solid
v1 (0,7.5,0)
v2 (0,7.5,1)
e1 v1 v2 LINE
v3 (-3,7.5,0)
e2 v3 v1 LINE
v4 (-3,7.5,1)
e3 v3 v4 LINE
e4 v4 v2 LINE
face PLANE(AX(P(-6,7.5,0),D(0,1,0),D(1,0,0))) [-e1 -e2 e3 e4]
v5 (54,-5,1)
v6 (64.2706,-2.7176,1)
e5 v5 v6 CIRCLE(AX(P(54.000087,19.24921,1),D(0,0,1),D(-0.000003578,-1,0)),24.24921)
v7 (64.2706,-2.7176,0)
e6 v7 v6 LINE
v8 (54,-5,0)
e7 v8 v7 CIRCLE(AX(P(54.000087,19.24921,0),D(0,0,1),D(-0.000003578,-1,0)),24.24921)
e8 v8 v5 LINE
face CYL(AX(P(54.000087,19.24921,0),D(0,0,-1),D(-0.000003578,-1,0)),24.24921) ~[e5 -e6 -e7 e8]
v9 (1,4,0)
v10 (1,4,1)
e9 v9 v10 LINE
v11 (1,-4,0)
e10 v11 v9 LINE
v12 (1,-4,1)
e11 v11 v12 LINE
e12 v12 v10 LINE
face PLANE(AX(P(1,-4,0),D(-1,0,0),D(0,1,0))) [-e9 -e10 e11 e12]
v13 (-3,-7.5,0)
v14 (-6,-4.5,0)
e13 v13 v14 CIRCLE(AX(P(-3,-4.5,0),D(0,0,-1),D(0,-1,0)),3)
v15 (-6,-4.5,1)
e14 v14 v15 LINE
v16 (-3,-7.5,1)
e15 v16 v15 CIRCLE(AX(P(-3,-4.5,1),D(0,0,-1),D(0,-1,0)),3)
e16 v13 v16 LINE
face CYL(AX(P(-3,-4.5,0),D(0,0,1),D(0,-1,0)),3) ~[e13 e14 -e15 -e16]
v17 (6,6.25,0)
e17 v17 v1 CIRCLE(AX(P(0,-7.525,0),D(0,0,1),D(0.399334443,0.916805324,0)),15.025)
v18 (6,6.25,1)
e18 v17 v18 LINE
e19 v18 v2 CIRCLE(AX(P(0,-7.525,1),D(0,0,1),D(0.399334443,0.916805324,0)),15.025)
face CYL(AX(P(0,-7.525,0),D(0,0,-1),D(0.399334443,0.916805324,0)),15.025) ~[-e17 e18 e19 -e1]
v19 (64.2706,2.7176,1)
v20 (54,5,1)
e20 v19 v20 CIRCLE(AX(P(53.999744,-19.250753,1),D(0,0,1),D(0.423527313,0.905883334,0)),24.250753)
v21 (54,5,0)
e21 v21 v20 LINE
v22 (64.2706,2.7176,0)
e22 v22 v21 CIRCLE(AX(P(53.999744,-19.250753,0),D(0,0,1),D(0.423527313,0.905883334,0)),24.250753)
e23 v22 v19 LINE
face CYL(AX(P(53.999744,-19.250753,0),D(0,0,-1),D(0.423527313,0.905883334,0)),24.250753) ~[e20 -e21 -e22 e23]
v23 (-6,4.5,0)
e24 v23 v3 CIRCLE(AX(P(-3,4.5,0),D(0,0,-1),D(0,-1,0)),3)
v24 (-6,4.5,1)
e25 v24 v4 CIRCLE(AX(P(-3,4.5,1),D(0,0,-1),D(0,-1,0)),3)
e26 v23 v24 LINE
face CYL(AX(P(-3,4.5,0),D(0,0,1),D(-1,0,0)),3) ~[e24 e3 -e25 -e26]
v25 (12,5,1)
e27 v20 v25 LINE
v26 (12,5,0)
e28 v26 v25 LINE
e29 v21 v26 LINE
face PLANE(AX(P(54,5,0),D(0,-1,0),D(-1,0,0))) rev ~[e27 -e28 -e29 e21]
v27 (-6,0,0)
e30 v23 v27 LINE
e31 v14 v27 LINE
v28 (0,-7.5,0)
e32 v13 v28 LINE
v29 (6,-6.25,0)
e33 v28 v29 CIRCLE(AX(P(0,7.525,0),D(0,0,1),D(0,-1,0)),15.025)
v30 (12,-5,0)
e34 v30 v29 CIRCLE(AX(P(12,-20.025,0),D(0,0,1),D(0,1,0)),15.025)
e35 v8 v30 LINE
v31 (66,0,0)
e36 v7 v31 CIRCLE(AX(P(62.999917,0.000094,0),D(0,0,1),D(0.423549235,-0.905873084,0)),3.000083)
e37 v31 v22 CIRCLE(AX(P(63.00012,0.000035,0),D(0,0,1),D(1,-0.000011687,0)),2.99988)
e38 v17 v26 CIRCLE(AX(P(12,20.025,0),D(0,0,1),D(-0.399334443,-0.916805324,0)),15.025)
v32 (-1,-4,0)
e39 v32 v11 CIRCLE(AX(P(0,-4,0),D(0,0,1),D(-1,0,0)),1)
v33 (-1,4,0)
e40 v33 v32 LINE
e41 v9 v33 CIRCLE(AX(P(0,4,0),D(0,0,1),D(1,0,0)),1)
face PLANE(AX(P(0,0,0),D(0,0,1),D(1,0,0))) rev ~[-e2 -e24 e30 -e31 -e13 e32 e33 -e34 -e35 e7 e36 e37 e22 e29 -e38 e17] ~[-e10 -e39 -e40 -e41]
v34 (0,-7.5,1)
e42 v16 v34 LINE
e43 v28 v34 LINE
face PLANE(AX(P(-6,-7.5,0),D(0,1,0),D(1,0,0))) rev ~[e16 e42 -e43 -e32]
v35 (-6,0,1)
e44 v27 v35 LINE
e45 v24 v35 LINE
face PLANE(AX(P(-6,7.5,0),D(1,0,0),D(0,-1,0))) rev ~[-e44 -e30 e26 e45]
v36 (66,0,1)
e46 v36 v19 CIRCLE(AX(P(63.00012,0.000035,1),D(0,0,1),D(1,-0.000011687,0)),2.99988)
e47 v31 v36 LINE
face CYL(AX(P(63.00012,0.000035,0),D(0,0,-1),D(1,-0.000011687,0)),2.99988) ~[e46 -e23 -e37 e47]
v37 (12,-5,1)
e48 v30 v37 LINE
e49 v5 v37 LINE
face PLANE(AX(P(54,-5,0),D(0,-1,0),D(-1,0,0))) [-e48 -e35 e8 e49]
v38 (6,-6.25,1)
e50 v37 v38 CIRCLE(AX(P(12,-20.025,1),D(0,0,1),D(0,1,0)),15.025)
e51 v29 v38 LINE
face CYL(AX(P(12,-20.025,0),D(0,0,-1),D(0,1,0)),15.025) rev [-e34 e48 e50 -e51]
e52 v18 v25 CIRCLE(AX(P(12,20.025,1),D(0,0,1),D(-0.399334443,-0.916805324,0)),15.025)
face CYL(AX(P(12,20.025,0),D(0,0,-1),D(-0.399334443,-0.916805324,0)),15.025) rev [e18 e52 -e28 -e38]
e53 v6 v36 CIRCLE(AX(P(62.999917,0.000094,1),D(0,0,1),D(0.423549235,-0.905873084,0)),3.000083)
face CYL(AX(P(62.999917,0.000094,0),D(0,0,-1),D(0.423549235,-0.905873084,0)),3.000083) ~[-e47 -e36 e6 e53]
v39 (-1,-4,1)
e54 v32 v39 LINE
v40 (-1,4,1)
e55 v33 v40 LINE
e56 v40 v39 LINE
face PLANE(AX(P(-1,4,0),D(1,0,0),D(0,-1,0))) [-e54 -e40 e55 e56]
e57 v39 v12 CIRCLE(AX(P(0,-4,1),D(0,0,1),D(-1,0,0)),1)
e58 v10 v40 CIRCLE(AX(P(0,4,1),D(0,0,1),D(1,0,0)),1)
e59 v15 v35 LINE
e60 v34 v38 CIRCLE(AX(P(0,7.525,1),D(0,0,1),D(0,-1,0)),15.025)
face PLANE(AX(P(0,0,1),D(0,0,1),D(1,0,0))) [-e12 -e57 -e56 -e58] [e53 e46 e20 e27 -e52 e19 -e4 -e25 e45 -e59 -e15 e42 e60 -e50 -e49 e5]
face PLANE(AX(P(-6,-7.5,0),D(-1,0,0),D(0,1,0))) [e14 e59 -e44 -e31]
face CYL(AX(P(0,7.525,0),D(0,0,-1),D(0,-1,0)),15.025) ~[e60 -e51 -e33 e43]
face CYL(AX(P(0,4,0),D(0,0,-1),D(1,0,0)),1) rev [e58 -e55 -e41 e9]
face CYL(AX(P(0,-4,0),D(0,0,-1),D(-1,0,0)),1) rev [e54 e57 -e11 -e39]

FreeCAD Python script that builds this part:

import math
import FreeCAD as App
import Part
import Sketcher
Q = App.Units.Quantity


def edges_at(feature, points):
    """Names of the edges that pass closest to the given points."""
    edges = feature.Shape.Edges
    near = lambda p: min(range(len(edges)), key=lambda i: edges[i].distToShape(Part.Vertex(*p))[0])
    return sorted({f"Edge{near(p) + 1}" for p in points})

doc = App.newDocument("Part")
params = doc.addObject("Spreadsheet::Sheet", "Params")
for row, (alias, value) in enumerate([
    ("sketch1_radius", "3 mm"),
    ("sketch1_radius2", "1 mm"),
    ("sketch1_width", "6 mm"),
    ("sketch1_width2", "42 mm"),
    ("pad1_length", "1 mm"),
    ("fillet_radius", "3 mm"),
], start=1):
    params.set(f"A{row}", alias)
    params.set(f"B{row}", "=" + value)
    params.setAlias(f"B{row}", alias)

body = doc.addObject("PartDesign::Body", "Body")

# Sketch on XY plane
sketch1 = body.newObject("Sketcher::SketchObject", "Sketch")
sketch1.AttachmentSupport = (doc.getObject("XY_Plane"), [""])
sketch1.MapMode = "FlatFace"
sketch1.addGeometry(Part.ArcOfCircle(Part.Circle(App.Vector(63, 0, 0), App.Vector(0, 0, 1), 2.999962), math.radians(0), math.radians(64.9418)), False)
sketch1.addGeometry(Part.ArcOfCircle(Part.Circle(App.Vector(54, -19.25, 0), App.Vector(0, 0, 1), 24.249962), math.radians(64.942312), math.radians(90)), False)
sketch1.addGeometry(Part.LineSegment(App.Vector(54, 5, 0), App.Vector(12, 5, 0)), False)
sketch1.addGeometry(Part.ArcOfCircle(Part.Circle(App.Vector(12, 20.025, 0), App.Vector(0, 0, 1), 15.025), math.radians(-113.536578), math.radians(-90)), False)
sketch1.addGeometry(Part.ArcOfCircle(Part.Circle(App.Vector(0, -7.525, 0), App.Vector(0, 0, 1), 15.025), math.radians(66.463422), math.radians(90)), False)
sketch1.addGeometry(Part.LineSegment(App.Vector(0, 7.5, 0), App.Vector(-6, 7.5, 0)), False)
sketch1.addGeometry(Part.LineSegment(App.Vector(-6, 7.5, 0), App.Vector(-6, -7.5, 0)), False)
sketch1.addGeometry(Part.LineSegment(App.Vector(-6, -7.5, 0), App.Vector(0, -7.5, 0)), False)
sketch1.addGeometry(Part.ArcOfCircle(Part.Circle(App.Vector(0, 7.525, 0), App.Vector(0, 0, 1), 15.025), math.radians(-90), math.radians(-66.463422)), False)
sketch1.addGeometry(Part.ArcOfCircle(Part.Circle(App.Vector(12, -20.025, 0), App.Vector(0, 0, 1), 15.025), math.radians(90), math.radians(113.536578)), False)
sketch1.addGeometry(Part.LineSegment(App.Vector(12, -5, 0), App.Vector(54, -5, 0)), False)
sketch1.addGeometry(Part.ArcOfCircle(Part.Circle(App.Vector(54, 19.25, 0), App.Vector(0, 0, 1), 24.25), math.radians(-90), math.radians(-64.942312)), False)
sketch1.addGeometry(Part.ArcOfCircle(Part.Circle(App.Vector(63, 0, 0), App.Vector(0, 0, 1), 3), math.radians(-64.9418), math.radians(0)), False)
sketch1.addGeometry(Part.LineSegment(App.Vector(-1, -4, 0), App.Vector(-1, 4, 0)), False)
sketch1.addGeometry(Part.ArcOfCircle(Part.Circle(App.Vector(0, 4, 0), App.Vector(0, 0, 1), 1), math.radians(0), math.radians(180)), False)
sketch1.addGeometry(Part.LineSegment(App.Vector(1, 4, 0), App.Vector(1, -4, 0)), False)
sketch1.addGeometry(Part.ArcOfCircle(Part.Circle(App.Vector(0, -4, 0), App.Vector(0, 0, 1), 1), math.radians(180), math.radians(360)), False)
sketch1.addConstraint(Sketcher.Constraint("Tangent", 0, 2, 1, 1))
sketch1.addConstraint(Sketcher.Constraint("Tangent", 1, 2, 2, 1))
sketch1.addConstraint(Sketcher.Constraint("Tangent", 2, 2, 3, 2))
sketch1.addConstraint(Sketcher.Constraint("Tangent", 3, 1, 4, 1))
sketch1.addConstraint(Sketcher.Constraint("Tangent", 4, 2, 5, 1))
sketch1.addConstraint(Sketcher.Constraint("Coincident", 5, 2, 6, 1))
sketch1.addConstraint(Sketcher.Constraint("Coincident", 6, 2, 7, 1))
sketch1.addConstraint(Sketcher.Constraint("Tangent", 7, 2, 8, 1))
sketch1.addConstraint(Sketcher.Constraint("Tangent", 8, 2, 9, 2))
sketch1.addConstraint(Sketcher.Constraint("Tangent", 9, 1, 10, 1))
sketch1.addConstraint(Sketcher.Constraint("Tangent", 10, 2, 11, 1))
sketch1.addConstraint(Sketcher.Constraint("Tangent", 11, 2, 12, 1))
sketch1.addConstraint(Sketcher.Constraint("Tangent", 12, 2, 0, 1))
sketch1.addConstraint(Sketcher.Constraint("Tangent", 13, 2, 14, 2))
sketch1.addConstraint(Sketcher.Constraint("Tangent", 14, 1, 15, 1))
sketch1.addConstraint(Sketcher.Constraint("Tangent", 15, 2, 16, 2))
sketch1.addConstraint(Sketcher.Constraint("Tangent", 16, 1, 13, 1))
sketch1.addConstraint(Sketcher.Constraint("Horizontal", 2))
sketch1.addConstraint(Sketcher.Constraint("Horizontal", 5))
sketch1.addConstraint(Sketcher.Constraint("Vertical", 6))
sketch1.addConstraint(Sketcher.Constraint("Horizontal", 7))
sketch1.addConstraint(Sketcher.Constraint("Horizontal", 10))
sketch1.addConstraint(Sketcher.Constraint("Vertical", 13))
sketch1.addConstraint(Sketcher.Constraint("Vertical", 15))
sketch1.addConstraint(Sketcher.Constraint("Equal", 3, 4))
sketch1.addConstraint(Sketcher.Constraint("Equal", 4, 8))
sketch1.addConstraint(Sketcher.Constraint("Equal", 8, 9))
sketch1.addConstraint(Sketcher.Constraint("Equal", 1, 11))
sketch1.addConstraint(Sketcher.Constraint("Equal", 0, 12))
sketch1.addConstraint(Sketcher.Constraint("Symmetric", 4, 3, 8, 3, -1, 1))
sketch1.addConstraint(Sketcher.Constraint("Symmetric", 14, 3, 16, 3, -1, 1))
sketch1.addConstraint(Sketcher.Constraint("Symmetric", 3, 3, 9, 3, -1))
sketch1.addConstraint(Sketcher.Constraint("PointOnObject", 0, 3, -1))
sketch1.addConstraint(Sketcher.Constraint("PointOnObject", 12, 2, -1))
sketch1.addConstraint(Sketcher.Constraint("Radius", 0, Q("3 mm")))
sketch1.addConstraint(Sketcher.Constraint("Radius", 14, Q("1 mm")))
sketch1.addConstraint(Sketcher.Constraint("DistanceX", 5, 2, 5, 1, Q("6 mm")))
sketch1.addConstraint(Sketcher.Constraint("DistanceX", -1, 1, 3, 3, Q("12 mm")))
sketch1.addConstraint(Sketcher.Constraint("DistanceY", -1, 1, 1, 2, Q("5 mm")))
sketch1.addConstraint(Sketcher.Constraint("DistanceX", 1, 3, 0, 3, Q("9 mm")))
sketch1.addConstraint(Sketcher.Constraint("DistanceY", 16, 3, 2, 2, Q("9 mm")))
sketch1.addConstraint(Sketcher.Constraint("DistanceY", -1, 1, 4, 2, Q("7.5 mm")))
sketch1.addConstraint(Sketcher.Constraint("DistanceX", 2, 2, 2, 1, Q("42 mm")))
sketch1.setExpression("Constraints[34]", "Params.sketch1_radius")
sketch1.setExpression("Constraints[35]", "Params.sketch1_radius2")
sketch1.setExpression("Constraints[36]", "Params.sketch1_width")
sketch1.setExpression("Constraints[42]", "Params.sketch1_width2")
pad1 = body.newObject("PartDesign::Pad", "Pad")
pad1.Profile = sketch1
pad1.setExpression("Length", "Params.pad1_length")
doc.recompute()

fillet = body.newObject("PartDesign::Fillet", "Fillet")
fillet.Base = (pad1, edges_at(pad1, [(-6, 7.5, 0.5), (-6, -7.5, 0.5)]))
fillet.setExpression("Radius", "Params.fillet_radius")

doc.recompute()
